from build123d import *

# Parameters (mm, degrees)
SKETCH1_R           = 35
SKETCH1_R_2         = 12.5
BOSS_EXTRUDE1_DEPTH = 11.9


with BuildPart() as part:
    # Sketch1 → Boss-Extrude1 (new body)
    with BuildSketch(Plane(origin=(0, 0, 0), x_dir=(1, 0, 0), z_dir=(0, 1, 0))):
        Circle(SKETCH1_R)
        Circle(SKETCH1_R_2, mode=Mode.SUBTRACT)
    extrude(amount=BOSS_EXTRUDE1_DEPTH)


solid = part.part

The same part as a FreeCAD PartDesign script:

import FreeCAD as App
import Part
import Sketcher

V = App.Vector
Q = App.Units.Quantity

doc = App.newDocument("Part")
body = doc.addObject("PartDesign::Body", "Body")

sketch1 = body.newObject("Sketcher::SketchObject", "Sketch")
sketch1.AttachmentSupport = (doc.getObject("XZ_Plane"), [""])
sketch1.MapMode = "FlatFace"
sketch1.addGeometry([
    Part.Circle(V(0, 0, 0), V(0, 0, 1), 35),
    Part.Circle(V(0, 0, 0), V(0, 0, 1), 12.5),
], False)
sketch1.addConstraint([
    Sketcher.Constraint("Coincident", 0, 3, -1, 1),
    Sketcher.Constraint("Coincident", 1, 3, -1, 1),
    Sketcher.Constraint("Diameter", 0, Q("70 mm")),
    Sketcher.Constraint("Diameter", 1, Q("25 mm")),
])
pad1 = body.newObject("PartDesign::Pad", "Pad")
pad1.Profile = sketch1
pad1.Length = 11.9
pad1.Reversed = True

doc.recompute()
